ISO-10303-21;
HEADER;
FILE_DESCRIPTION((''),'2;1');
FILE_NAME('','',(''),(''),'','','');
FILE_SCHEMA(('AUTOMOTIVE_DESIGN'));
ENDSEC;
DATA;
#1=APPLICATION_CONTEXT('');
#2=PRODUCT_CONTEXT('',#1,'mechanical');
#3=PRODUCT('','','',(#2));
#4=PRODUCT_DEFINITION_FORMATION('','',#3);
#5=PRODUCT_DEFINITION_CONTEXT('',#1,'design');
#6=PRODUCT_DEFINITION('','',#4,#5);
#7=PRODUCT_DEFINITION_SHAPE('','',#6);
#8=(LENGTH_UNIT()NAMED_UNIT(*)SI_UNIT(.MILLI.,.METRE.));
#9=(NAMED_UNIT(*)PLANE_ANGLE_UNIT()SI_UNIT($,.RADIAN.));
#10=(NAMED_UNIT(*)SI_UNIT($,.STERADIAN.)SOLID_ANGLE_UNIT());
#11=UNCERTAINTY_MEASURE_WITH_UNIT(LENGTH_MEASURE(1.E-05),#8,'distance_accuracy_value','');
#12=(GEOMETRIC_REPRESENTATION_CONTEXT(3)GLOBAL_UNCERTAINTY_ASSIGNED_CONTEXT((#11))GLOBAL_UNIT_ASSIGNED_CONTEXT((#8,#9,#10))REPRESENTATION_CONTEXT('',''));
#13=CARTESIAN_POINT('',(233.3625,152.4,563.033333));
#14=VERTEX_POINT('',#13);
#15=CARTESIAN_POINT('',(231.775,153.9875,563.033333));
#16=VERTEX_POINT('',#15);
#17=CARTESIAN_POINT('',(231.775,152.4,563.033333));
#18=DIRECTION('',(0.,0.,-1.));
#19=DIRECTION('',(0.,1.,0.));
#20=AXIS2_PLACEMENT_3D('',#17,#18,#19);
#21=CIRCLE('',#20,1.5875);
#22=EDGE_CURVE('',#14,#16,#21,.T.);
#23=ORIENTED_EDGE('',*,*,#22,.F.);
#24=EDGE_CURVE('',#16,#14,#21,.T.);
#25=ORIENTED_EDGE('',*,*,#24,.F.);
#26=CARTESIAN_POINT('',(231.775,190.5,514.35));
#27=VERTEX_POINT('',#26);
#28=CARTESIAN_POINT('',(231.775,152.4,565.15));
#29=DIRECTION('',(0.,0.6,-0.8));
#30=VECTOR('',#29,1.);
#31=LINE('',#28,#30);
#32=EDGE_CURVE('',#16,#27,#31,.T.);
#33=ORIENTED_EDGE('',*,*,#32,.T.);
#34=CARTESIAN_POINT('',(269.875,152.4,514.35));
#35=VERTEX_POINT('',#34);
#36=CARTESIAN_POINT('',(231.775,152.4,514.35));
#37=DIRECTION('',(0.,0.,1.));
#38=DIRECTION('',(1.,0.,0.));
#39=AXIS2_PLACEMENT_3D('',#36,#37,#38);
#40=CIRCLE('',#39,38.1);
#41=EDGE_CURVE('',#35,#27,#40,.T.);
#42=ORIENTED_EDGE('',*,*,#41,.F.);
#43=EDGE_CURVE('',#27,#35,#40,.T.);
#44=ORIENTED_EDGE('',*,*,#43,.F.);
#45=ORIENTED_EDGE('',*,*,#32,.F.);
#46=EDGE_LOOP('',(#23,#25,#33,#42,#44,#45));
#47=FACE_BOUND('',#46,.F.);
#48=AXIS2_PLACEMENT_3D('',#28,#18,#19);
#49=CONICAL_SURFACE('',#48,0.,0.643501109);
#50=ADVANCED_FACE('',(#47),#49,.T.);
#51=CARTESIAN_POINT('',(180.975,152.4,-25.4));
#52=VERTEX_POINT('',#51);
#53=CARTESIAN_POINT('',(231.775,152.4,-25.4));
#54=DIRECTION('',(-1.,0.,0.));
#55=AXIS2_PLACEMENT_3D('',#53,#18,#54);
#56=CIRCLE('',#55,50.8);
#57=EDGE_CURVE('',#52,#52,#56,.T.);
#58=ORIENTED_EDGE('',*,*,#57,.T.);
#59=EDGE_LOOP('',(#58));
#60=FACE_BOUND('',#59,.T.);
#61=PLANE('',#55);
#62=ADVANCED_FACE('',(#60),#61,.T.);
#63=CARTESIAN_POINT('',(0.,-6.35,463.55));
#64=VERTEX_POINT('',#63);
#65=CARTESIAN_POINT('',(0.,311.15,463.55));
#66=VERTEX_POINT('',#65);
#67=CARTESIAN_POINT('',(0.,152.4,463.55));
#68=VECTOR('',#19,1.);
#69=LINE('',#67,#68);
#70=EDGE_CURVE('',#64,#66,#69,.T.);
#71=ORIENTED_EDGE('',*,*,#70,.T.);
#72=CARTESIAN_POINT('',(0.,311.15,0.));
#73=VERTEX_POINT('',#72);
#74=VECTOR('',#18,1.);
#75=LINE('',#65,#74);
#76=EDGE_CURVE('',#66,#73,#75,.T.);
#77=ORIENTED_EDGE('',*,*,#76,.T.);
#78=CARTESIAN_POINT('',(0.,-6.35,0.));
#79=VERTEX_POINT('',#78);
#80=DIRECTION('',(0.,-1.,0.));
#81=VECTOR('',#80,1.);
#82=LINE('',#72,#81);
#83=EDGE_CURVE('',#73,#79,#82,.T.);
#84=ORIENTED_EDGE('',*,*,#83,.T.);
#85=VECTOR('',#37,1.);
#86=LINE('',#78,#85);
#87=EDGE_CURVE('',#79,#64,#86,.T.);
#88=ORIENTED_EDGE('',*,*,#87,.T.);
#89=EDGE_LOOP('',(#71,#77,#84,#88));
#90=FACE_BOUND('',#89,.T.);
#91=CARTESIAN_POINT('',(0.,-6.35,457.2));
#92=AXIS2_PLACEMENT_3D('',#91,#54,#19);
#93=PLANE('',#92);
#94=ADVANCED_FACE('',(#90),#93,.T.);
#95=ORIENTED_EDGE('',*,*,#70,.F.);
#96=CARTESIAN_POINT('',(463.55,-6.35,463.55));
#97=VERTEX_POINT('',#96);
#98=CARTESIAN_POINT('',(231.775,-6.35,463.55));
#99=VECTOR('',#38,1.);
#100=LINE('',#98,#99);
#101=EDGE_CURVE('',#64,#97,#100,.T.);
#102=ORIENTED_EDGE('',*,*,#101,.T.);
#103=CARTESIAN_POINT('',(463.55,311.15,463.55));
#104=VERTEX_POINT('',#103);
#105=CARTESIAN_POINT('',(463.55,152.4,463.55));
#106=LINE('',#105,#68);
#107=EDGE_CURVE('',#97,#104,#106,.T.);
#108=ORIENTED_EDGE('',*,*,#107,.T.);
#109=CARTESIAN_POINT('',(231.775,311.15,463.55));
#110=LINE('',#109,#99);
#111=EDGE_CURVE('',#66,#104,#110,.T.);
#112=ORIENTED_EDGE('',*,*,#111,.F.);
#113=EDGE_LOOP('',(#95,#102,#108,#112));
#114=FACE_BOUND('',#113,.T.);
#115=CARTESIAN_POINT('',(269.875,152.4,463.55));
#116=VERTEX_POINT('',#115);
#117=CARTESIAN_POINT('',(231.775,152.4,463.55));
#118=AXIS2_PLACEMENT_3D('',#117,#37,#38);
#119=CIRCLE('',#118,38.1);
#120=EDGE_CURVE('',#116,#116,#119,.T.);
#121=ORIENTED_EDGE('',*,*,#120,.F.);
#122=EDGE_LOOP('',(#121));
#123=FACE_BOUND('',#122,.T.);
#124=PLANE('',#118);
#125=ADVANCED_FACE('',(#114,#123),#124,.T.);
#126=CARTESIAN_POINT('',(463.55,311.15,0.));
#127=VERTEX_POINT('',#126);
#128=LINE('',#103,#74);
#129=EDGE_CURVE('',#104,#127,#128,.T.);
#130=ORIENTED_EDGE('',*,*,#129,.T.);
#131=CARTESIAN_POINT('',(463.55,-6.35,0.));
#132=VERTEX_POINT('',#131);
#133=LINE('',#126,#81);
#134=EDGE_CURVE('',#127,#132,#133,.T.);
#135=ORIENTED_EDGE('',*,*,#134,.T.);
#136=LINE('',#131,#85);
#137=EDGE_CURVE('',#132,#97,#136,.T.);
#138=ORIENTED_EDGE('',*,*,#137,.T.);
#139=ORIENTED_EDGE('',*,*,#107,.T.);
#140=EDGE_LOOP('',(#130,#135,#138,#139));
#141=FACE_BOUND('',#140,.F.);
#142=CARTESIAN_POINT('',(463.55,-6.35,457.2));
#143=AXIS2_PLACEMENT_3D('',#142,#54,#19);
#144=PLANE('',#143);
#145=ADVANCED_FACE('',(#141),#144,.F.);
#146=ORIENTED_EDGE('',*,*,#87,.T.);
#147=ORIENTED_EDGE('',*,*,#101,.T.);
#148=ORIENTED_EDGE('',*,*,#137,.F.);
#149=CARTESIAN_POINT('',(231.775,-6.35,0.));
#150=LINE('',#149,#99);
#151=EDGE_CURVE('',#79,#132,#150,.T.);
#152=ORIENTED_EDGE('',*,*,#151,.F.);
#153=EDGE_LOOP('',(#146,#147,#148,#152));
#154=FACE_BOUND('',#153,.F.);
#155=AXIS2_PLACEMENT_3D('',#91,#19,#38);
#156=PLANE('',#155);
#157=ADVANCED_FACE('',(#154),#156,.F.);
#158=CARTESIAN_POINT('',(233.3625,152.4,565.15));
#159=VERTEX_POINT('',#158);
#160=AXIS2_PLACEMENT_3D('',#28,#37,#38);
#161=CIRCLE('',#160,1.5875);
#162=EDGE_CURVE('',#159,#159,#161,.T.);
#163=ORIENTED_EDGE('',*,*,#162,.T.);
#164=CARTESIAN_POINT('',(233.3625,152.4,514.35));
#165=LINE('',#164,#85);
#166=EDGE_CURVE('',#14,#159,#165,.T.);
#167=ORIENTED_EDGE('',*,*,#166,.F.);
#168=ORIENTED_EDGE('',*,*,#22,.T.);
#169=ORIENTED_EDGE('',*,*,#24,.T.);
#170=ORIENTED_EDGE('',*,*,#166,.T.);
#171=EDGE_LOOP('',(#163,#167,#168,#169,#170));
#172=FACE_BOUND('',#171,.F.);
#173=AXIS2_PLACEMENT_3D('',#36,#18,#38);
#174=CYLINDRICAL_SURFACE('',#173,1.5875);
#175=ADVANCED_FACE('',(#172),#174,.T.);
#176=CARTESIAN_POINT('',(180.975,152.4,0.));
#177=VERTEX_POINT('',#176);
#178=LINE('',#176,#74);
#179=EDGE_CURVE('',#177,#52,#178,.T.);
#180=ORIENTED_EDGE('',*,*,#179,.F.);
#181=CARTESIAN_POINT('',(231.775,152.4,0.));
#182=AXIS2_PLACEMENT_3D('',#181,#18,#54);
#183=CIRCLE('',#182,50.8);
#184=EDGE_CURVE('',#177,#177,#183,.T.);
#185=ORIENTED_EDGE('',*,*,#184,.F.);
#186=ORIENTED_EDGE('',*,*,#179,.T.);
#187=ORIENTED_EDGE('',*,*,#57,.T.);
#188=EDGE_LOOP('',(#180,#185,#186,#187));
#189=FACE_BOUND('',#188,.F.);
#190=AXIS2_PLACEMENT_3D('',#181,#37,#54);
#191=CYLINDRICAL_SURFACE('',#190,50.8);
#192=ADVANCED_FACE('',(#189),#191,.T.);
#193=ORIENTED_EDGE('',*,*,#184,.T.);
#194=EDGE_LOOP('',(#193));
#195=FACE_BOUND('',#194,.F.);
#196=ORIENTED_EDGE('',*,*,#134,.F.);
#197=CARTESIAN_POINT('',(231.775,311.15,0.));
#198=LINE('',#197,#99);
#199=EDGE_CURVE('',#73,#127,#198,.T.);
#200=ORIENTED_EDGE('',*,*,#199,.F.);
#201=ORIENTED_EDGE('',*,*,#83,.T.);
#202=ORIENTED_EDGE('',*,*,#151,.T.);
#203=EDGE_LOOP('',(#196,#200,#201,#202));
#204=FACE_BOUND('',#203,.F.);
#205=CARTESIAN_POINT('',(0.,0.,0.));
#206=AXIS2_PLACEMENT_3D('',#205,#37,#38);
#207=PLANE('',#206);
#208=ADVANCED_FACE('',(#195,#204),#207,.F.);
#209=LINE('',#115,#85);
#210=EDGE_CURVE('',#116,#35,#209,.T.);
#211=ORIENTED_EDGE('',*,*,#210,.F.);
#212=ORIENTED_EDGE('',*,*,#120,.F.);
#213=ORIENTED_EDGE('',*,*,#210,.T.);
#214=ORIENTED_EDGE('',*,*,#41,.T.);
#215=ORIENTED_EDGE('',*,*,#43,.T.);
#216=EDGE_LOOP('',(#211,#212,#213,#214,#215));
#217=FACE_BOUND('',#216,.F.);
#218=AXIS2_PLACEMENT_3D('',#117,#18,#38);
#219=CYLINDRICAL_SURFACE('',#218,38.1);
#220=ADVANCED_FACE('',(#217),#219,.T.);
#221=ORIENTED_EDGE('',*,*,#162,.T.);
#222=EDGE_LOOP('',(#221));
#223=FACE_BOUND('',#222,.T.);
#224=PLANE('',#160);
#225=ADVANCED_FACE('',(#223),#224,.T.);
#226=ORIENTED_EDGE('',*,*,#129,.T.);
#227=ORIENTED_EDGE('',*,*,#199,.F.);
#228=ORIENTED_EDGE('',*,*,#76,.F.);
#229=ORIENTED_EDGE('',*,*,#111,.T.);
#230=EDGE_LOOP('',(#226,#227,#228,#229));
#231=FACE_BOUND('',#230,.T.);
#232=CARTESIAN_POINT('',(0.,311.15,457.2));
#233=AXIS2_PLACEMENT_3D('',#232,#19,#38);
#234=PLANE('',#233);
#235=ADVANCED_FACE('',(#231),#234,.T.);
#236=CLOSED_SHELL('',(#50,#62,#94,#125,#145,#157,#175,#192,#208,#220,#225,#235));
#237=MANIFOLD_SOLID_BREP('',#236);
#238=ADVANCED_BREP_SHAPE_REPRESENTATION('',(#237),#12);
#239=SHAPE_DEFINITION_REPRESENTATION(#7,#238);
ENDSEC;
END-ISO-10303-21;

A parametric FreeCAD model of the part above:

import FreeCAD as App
import Part
import Sketcher
from FreeCAD import Vector
Q = App.Units.Quantity


def add_polygon(sketch, points):
    """Adds a closed chain of lines whose ends are joined by coincident constraints."""
    first, n = sketch.GeometryCount, len(points)
    for a, b in zip(points, points[1:] + points[:1]):
        sketch.addGeometry(Part.LineSegment(App.Vector(*a, 0), App.Vector(*b, 0)), False)
    for i in range(n):
        sketch.addConstraint(Sketcher.Constraint("Coincident", first + i, 2, first + (i + 1) % n, 1))

doc = App.newDocument("Part")
params = doc.addObject("Spreadsheet::Sheet", "Params")
for row, (alias, value) in enumerate([
    ("sketch1_width", "18 in"),
    ("sketch1_height", "12 in"),
    ("pad1_length", "18 in"),
    ("sketch2_width", "12 in"),
    ("sketch2_height", "18 in"),
    ("pad2_length", "0.25 in"),
    ("sketch3_height", "18 in"),
    ("sketch3_width", "18.25 in"),
    ("pad3_length", "0.25 in"),
    ("sketch4_height", "18 in"),
    ("sketch4_width", "18.25 in"),
    ("pad4_length", "0.25 in"),
    ("sketch5_height", "12.5 in"),
    ("sketch5_width", "18.25 in"),
    ("pad5_length", "0.25 in"),
    ("sketch6_diameter", "3 in"),
    ("pad6_length", "2 in"),
    ("sketch7_diameter", "4 in"),
    ("pad7_length", "1 in"),
    ("sketch8_diameter", "0.125 in"),
    ("pad8_length", "2 in"),
    ("sketch9_height", "2 in"),
    ("sketch9_width", "1.5 in"),
    ("revolution_angle", "360 deg"),
], start=1):
    params.set(f"A{row}", alias)
    params.set(f"B{row}", "=" + value)
    params.setAlias(f"B{row}", alias)

body = doc.addObject("PartDesign::Body", "Body")

# Sketch on XY plane
sketch1 = body.newObject("Sketcher::SketchObject", "Sketch")
sketch1.AttachmentSupport = (doc.getObject("XY_Plane"), [""])
sketch1.MapMode = "FlatFace"
add_polygon(sketch1, [(0, 305), (0, 0), (457, 0), (457, 305)])  # lines 0-3
sketch1.addConstraint([
    Sketcher.Constraint("Vertical", 0),
    Sketcher.Constraint("Horizontal", 1),
    Sketcher.Constraint("Vertical", 2),
    Sketcher.Constraint("Horizontal", 3),
    Sketcher.Constraint("Coincident", 0, 2, -1, 1),
    Sketcher.Constraint("DistanceX", 1, 1, 1, 2, Q("18 in")),
    Sketcher.Constraint("DistanceY", 0, 2, 0, 1, Q("12 in")),
])
sketch1.setExpression("Constraints[9]", "Params.sketch1_width")
sketch1.setExpression("Constraints[10]", "Params.sketch1_height")
pad1 = body.newObject("PartDesign::Pad", "Pad")
pad1.Profile = sketch1
pad1.setExpression("Length", "Params.pad1_length")

# Sketch on YZ plane
sketch2 = body.newObject("Sketcher::SketchObject", "Sketch001")
sketch2.AttachmentSupport = (doc.getObject("YZ_Plane"), [""])
sketch2.MapMode = "FlatFace"
sketch2.AttachmentOffset = App.Placement(Vector(0, 0, 18 * 25.4), App.Rotation())
add_polygon(sketch2, [(305, 457), (0, 457), (0, 0), (305, 0)])  # lines 0-3
sketch2.addConstraint([
    Sketcher.Constraint("Horizontal", 0),
    Sketcher.Constraint("Vertical", 1),
    Sketcher.Constraint("Horizontal", 2),
    Sketcher.Constraint("Vertical", 3),
    Sketcher.Constraint("Coincident", 1, 2, -1, 1),
    Sketcher.Constraint("DistanceX", 0, 2, 0, 1, Q("12 in")),
    Sketcher.Constraint("DistanceY", 1, 2, 1, 1, Q("18 in")),
])
sketch2.setExpression("Constraints[9]", "Params.sketch2_width")
sketch2.setExpression("Constraints[10]", "Params.sketch2_height")
pad2 = body.newObject("PartDesign::Pad", "Pad001")
pad2.Profile = sketch2
pad2.setExpression("Length", "Params.pad2_length")

# Sketch on XZ plane
sketch3 = body.newObject("Sketcher::SketchObject", "Sketch002")
sketch3.AttachmentSupport = (doc.getObject("XZ_Plane"), [""])
sketch3.MapMode = "FlatFace"
sketch3.AttachmentOffset = App.Placement(Vector(0, 0, -12 * 25.4), App.Rotation())
add_polygon(sketch3, [(0, 0), (0, 457), (464, 457), (464, 0)])  # lines 0-3
sketch3.addConstraint([
    Sketcher.Constraint("Vertical", 0),
    Sketcher.Constraint("Horizontal", 1),
    Sketcher.Constraint("Vertical", 2),
    Sketcher.Constraint("Horizontal", 3),
    Sketcher.Constraint("Coincident", 3, 2, -1, 1),
    Sketcher.Constraint("DistanceY", 0, 1, 0, 2, Q("18 in")),
    Sketcher.Constraint("DistanceX", 1, 1, 1, 2, Q("18.25 in")),
])
sketch3.setExpression("Constraints[9]", "Params.sketch3_height")
sketch3.setExpression("Constraints[10]", "Params.sketch3_width")
pad3 = body.newObject("PartDesign::Pad", "Pad002")
pad3.Profile = sketch3
pad3.setExpression("Length", "Params.pad3_length")
pad3.Reversed = True

# Sketch on XZ plane
sketch4 = body.newObject("Sketcher::SketchObject", "Sketch003")
sketch4.AttachmentSupport = (doc.getObject("XZ_Plane"), [""])
sketch4.MapMode = "FlatFace"
add_polygon(sketch4, [(0, 457), (0, 0), (464, 0), (464, 457)])  # lines 0-3
sketch4.addConstraint([
    Sketcher.Constraint("Vertical", 0),
    Sketcher.Constraint("Horizontal", 1),
    Sketcher.Constraint("Vertical", 2),
    Sketcher.Constraint("Horizontal", 3),
    Sketcher.Constraint("Coincident", 0, 2, -1, 1),
    Sketcher.Constraint("DistanceY", 0, 2, 0, 1, Q("18 in")),
    Sketcher.Constraint("DistanceX", 1, 1, 1, 2, Q("18.25 in")),
])
sketch4.setExpression("Constraints[9]", "Params.sketch4_height")
sketch4.setExpression("Constraints[10]", "Params.sketch4_width")
pad4 = body.newObject("PartDesign::Pad", "Pad003")
pad4.Profile = sketch4
pad4.setExpression("Length", "Params.pad4_length")

# Sketch on XY plane
sketch5 = body.newObject("Sketcher::SketchObject", "Sketch004")
sketch5.AttachmentSupport = (doc.getObject("XY_Plane"), [""])
sketch5.MapMode = "FlatFace"
sketch5.AttachmentOffset = App.Placement(Vector(0, 0, 18 * 25.4), App.Rotation())
add_polygon(sketch5, [(0, 311), (0, -6), (464, -6), (464, 311)])  # lines 0-3
sketch5.addConstraint([
    Sketcher.Constraint("Vertical", 0),
    Sketcher.Constraint("Horizontal", 1),
    Sketcher.Constraint("Vertical", 2),
    Sketcher.Constraint("Horizontal", 3),
    Sketcher.Constraint("PointOnObject", 0, 2, -2),
    Sketcher.Constraint("DistanceY", 0, 2, 0, 1, Q("12.5 in")),
    Sketcher.Constraint("DistanceX", 1, 1, 1, 2, Q("18.25 in")),
    Sketcher.Constraint("DistanceY", 0, 2, -1, 1, Q("0.25 in")),
])
sketch5.setExpression("Constraints[9]", "Params.sketch5_height")
sketch5.setExpression("Constraints[10]", "Params.sketch5_width")
pad5 = body.newObject("PartDesign::Pad", "Pad004")
pad5.Profile = sketch5
pad5.setExpression("Length", "Params.pad5_length")

# Sketch on XY plane
sketch6 = body.newObject("Sketcher::SketchObject", "Sketch005")
sketch6.AttachmentSupport = (doc.getObject("XY_Plane"), [""])
sketch6.MapMode = "FlatFace"
sketch6.AttachmentOffset = App.Placement(Vector(0, 0, 18.25 * 25.4), App.Rotation())
sketch6.addGeometry(Part.Circle(Vector(232, 152, 0), Vector(0, 0, 1), 38), False)
sketch6.addConstraint([
    Sketcher.Constraint("Diameter", 0, Q("3 in")),
    Sketcher.Constraint("DistanceY", -1, 1, 0, 3, Q("6 in")),
    Sketcher.Constraint("DistanceX", -1, 1, 0, 3, Q("9.125 in")),
])
sketch6.setExpression("Constraints[0]", "Params.sketch6_diameter")
pad6 = body.newObject("PartDesign::Pad", "Pad005")
pad6.Profile = sketch6
pad6.setExpression("Length", "Params.pad6_length")

# Sketch on XY plane
sketch7 = body.newObject("Sketcher::SketchObject", "Sketch006")
sketch7.AttachmentSupport = (doc.getObject("XY_Plane"), [""])
sketch7.MapMode = "FlatFace"
sketch7.addGeometry(Part.Circle(Vector(232, 152, 0), Vector(0, 0, 1), 51), False)
sketch7.addConstraint([
    Sketcher.Constraint("Diameter", 0, Q("4 in")),
    Sketcher.Constraint("DistanceY", -1, 1, 0, 3, Q("6 in")),
    Sketcher.Constraint("DistanceX", -1, 1, 0, 3, Q("9.125 in")),
])
sketch7.setExpression("Constraints[0]", "Params.sketch7_diameter")
pad7 = body.newObject("PartDesign::Pad", "Pad006")
pad7.Profile = sketch7
pad7.setExpression("Length", "Params.pad7_length")
pad7.Reversed = True

# Sketch on XY plane
sketch8 = body.newObject("Sketcher::SketchObject", "Sketch007")
sketch8.AttachmentSupport = (doc.getObject("XY_Plane"), [""])
sketch8.MapMode = "FlatFace"
sketch8.AttachmentOffset = App.Placement(Vector(0, 0, 20.25 * 25.4), App.Rotation())
sketch8.addGeometry(Part.Circle(Vector(231.8, 152.4, 0), Vector(0, 0, 1), 1.6), False)
sketch8.addConstraint([
    Sketcher.Constraint("Diameter", 0, Q("0.125 in")),
    Sketcher.Constraint("DistanceY", -1, 1, 0, 3, Q("6 in")),
    Sketcher.Constraint("DistanceX", -1, 1, 0, 3, Q("9.125 in")),
])
sketch8.setExpression("Constraints[0]", "Params.sketch8_diameter")
pad8 = body.newObject("PartDesign::Pad", "Pad007")
pad8.Profile = sketch8
pad8.setExpression("Length", "Params.pad8_length")

# Sketch on YZ plane
sketch9 = body.newObject("Sketcher::SketchObject", "Sketch008")
sketch9.AttachmentSupport = (doc.getObject("YZ_Plane"), [""])
sketch9.MapMode = "FlatFace"
sketch9.AttachmentOffset = App.Placement(Vector(0, 0, 9.125 * 25.4), App.Rotation())
add_polygon(sketch9, [(190, 514), (152, 514), (152, 565)])  # lines 0-2
sketch9.addGeometry(Part.LineSegment(Vector(152, 514, 0), Vector(152, 565, 0)), True)  # axis
sketch9.addConstraint([
    Sketcher.Constraint("Horizontal", 0),
    Sketcher.Constraint("Vertical", 1),
    Sketcher.Constraint("Vertical", 3),
    Sketcher.Constraint("Coincident", 3, 1, 0, 2),
    Sketcher.Constraint("Equal", 1, 3),
    Sketcher.Constraint("DistanceY", 1, 1, 1, 2, Q("2 in")),
    Sketcher.Constraint("DistanceX", 0, 2, 0, 1, Q("1.5 in")),
    Sketcher.Constraint("DistanceX", -1, 1, 0, 2, Q("6 in")),
    Sketcher.Constraint("DistanceY", -1, 1, 0, 2, Q("20.25 in")),
])
sketch9.setExpression("Constraints[8]", "Params.sketch9_height")
sketch9.setExpression("Constraints[9]", "Params.sketch9_width")
revolution = body.newObject("PartDesign::Revolution", "Revolution")
revolution.Profile = sketch9
revolution.ReferenceAxis = (sketch9, ["Axis0"])
revolution.setExpression("Angle", "Params.revolution_angle")

doc.recompute()
